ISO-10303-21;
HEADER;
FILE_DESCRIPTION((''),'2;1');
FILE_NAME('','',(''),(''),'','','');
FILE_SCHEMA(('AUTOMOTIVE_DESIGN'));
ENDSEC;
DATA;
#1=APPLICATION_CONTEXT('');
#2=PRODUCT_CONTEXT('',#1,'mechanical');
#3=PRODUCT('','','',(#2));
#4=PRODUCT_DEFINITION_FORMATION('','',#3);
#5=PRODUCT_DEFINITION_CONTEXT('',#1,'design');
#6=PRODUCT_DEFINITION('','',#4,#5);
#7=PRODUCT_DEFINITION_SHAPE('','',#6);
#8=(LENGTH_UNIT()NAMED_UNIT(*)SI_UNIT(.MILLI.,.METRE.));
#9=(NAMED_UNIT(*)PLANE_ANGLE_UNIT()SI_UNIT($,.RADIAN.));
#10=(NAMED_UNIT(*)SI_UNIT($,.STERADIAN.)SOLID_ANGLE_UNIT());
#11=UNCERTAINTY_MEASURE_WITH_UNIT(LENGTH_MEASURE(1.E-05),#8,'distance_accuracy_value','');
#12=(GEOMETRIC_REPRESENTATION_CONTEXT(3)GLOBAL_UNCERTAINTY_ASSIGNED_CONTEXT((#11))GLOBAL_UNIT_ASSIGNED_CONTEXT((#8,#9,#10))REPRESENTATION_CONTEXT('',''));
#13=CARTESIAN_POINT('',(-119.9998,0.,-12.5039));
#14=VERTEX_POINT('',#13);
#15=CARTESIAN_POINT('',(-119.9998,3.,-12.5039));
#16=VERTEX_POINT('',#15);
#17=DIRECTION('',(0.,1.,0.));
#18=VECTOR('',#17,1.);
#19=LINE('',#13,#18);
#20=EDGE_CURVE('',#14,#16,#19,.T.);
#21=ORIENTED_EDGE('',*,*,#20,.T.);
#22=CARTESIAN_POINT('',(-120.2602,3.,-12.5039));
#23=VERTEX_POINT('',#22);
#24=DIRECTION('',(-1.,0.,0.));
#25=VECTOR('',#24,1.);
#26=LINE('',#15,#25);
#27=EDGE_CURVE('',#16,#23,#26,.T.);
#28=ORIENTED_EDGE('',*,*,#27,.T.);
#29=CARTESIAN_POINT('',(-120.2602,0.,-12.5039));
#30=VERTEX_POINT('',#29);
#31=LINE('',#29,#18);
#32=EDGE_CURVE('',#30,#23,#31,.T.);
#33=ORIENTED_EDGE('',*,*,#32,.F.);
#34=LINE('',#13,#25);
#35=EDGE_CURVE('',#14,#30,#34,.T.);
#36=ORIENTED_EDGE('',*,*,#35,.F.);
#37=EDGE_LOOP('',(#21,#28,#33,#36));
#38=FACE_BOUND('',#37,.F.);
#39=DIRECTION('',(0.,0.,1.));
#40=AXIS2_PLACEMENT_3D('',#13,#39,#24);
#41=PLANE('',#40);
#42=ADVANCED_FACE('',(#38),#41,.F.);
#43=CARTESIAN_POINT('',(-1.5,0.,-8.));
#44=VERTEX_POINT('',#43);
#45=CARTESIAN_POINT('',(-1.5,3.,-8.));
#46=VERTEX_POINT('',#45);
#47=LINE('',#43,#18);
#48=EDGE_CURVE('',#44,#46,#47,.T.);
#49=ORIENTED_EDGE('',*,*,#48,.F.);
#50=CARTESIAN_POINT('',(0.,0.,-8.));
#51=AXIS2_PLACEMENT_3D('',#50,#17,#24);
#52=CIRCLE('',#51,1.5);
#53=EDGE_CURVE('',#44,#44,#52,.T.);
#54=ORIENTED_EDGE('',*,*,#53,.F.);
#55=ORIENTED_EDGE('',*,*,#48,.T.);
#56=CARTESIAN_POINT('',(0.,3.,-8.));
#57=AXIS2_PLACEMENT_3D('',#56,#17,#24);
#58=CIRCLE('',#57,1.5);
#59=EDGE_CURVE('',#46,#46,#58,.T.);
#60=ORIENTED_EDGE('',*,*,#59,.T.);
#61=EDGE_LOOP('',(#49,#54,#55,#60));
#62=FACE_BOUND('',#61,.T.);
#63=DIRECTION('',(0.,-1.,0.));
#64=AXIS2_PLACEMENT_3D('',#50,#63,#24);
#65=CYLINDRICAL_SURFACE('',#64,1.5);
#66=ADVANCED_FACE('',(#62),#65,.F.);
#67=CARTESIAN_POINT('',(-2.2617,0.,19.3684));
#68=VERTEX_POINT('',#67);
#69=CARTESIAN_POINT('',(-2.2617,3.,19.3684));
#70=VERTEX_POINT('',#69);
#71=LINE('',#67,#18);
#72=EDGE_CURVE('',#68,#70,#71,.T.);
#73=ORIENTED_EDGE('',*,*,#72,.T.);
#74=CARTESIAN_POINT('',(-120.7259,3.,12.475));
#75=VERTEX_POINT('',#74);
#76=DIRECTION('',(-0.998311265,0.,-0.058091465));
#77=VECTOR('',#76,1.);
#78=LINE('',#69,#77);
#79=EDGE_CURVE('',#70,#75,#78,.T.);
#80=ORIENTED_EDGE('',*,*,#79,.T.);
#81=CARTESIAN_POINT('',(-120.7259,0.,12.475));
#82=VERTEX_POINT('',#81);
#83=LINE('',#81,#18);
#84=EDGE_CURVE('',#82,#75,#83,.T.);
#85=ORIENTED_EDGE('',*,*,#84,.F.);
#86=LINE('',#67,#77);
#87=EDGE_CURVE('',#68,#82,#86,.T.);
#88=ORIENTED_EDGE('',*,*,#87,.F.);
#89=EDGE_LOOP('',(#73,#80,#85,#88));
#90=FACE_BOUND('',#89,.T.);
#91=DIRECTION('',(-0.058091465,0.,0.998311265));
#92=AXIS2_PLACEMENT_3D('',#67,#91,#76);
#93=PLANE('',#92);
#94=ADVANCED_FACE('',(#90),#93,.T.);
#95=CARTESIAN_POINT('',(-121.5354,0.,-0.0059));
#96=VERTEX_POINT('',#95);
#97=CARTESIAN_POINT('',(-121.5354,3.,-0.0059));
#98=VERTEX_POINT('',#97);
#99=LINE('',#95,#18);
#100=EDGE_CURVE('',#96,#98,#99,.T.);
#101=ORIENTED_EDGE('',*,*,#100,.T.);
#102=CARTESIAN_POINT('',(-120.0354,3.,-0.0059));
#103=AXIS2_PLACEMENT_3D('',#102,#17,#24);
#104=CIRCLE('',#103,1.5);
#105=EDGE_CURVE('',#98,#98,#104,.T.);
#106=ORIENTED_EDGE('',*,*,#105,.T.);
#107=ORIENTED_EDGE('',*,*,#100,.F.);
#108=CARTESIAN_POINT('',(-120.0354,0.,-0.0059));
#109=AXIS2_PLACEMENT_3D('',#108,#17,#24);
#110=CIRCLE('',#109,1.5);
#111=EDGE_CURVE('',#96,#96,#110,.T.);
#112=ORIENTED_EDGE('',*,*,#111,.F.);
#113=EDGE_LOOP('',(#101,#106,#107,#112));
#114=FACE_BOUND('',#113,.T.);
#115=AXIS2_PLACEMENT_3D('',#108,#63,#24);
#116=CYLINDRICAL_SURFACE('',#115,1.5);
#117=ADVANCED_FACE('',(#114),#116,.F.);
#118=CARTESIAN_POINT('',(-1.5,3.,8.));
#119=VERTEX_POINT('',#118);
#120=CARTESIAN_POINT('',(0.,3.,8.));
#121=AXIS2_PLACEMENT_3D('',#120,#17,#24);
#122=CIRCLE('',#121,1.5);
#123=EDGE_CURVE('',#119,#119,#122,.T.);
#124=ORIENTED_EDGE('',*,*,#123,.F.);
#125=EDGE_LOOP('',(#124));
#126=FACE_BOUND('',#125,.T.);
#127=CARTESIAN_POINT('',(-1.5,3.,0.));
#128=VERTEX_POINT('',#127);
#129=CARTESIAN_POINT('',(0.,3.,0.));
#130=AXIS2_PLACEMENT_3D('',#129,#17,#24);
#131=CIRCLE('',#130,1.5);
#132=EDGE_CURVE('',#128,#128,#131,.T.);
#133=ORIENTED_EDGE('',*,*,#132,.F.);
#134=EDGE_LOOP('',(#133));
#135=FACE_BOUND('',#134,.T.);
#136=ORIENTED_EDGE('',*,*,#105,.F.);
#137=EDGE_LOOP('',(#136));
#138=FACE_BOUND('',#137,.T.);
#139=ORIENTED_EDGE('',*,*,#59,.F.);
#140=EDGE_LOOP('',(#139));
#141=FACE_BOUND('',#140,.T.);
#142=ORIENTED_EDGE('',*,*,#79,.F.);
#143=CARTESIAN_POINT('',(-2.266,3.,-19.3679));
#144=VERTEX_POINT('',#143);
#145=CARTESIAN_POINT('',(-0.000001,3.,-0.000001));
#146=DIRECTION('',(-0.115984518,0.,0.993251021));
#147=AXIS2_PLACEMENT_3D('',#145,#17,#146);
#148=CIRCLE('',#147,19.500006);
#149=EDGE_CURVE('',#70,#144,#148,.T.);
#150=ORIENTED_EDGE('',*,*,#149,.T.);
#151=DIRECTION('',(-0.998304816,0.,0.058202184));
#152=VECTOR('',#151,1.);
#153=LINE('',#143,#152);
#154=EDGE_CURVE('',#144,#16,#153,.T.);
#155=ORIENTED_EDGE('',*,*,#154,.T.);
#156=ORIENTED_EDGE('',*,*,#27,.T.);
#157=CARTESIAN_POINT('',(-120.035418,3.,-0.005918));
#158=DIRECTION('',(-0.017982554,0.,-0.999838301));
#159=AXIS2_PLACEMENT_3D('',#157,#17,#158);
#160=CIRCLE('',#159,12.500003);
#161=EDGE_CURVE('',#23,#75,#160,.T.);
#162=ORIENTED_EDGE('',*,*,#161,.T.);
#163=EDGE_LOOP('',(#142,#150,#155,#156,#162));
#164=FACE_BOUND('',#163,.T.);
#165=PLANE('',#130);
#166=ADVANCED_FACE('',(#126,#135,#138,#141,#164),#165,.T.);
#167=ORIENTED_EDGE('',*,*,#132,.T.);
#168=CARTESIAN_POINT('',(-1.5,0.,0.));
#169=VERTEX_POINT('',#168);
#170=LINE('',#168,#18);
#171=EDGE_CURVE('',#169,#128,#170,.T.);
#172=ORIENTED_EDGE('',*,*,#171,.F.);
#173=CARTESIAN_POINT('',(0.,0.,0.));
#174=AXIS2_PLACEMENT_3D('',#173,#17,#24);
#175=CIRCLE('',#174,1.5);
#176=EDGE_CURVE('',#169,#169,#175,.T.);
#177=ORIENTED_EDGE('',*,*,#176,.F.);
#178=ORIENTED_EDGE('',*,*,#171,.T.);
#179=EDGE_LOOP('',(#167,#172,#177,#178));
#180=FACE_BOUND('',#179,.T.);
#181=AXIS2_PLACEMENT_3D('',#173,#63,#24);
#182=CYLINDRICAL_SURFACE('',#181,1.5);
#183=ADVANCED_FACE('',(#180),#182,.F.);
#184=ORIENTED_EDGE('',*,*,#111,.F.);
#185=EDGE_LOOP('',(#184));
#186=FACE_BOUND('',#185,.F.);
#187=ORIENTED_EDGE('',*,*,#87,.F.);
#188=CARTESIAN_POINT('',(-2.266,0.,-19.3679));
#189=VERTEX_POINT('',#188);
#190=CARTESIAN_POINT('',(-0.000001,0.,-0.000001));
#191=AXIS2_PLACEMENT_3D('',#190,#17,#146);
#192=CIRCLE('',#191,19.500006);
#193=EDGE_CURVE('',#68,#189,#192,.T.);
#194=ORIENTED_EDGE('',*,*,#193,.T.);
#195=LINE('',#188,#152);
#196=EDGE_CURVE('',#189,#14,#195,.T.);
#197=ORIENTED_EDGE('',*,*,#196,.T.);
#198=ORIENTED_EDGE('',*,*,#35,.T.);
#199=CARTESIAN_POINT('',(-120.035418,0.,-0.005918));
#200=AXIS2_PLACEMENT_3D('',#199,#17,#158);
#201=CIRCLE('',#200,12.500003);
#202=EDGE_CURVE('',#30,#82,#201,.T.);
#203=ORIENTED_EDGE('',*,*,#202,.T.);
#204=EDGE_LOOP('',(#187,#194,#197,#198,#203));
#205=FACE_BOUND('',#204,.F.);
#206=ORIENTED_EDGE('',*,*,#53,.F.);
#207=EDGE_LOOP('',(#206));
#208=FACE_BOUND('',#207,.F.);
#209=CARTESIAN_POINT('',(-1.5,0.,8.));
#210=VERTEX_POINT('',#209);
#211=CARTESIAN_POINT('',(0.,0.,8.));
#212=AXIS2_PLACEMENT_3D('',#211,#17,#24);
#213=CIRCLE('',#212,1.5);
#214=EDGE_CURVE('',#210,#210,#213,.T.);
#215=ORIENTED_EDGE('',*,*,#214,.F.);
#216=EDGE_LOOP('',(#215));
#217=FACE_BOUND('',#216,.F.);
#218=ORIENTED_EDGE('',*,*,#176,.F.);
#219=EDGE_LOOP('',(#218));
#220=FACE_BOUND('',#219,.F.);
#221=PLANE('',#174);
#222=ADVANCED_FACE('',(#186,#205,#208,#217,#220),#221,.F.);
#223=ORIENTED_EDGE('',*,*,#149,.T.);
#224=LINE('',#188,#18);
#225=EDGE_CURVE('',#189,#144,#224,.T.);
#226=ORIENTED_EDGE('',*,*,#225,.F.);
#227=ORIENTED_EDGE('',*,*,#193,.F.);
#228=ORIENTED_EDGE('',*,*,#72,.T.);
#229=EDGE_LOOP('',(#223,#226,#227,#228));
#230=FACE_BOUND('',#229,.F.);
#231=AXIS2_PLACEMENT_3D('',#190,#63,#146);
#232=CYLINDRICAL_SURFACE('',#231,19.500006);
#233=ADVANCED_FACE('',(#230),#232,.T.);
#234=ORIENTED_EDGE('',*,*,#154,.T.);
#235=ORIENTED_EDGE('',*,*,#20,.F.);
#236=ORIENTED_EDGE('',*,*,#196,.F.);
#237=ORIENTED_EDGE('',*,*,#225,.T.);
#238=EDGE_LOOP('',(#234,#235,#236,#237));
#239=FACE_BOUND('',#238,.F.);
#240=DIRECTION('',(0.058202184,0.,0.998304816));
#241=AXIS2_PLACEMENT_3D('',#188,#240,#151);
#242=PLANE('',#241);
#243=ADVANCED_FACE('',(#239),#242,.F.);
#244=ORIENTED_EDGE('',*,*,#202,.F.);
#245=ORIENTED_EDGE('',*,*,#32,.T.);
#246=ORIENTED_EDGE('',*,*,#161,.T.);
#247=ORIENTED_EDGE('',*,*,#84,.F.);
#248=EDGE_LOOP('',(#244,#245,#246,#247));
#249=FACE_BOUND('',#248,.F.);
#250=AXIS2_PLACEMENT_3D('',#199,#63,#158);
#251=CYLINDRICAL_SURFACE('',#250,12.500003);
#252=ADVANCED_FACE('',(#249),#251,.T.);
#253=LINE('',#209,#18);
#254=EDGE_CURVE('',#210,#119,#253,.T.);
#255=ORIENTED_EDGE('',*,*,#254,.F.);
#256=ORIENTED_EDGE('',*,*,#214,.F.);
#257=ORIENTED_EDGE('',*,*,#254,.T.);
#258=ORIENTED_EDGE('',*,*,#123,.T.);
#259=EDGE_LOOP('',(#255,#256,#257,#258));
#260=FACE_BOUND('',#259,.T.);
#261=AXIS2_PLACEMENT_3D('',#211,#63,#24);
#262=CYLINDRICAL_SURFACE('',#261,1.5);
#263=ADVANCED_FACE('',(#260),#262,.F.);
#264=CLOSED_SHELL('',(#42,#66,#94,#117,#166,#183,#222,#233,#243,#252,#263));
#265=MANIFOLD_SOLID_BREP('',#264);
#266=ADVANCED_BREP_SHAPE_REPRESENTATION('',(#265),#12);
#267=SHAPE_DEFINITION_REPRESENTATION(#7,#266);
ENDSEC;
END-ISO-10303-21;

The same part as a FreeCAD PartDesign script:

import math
import FreeCAD as App
import Part
import Sketcher
Q = App.Units.Quantity

doc = App.newDocument("Part")
body = doc.addObject("PartDesign::Body", "Body")

# Sketch on XZ plane
sketch1 = body.newObject("Sketcher::SketchObject", "Sketch")
sketch1.AttachmentSupport = (doc.getObject("XZ_Plane"), [""])
sketch1.MapMode = "FlatFace"
sketch1.addGeometry([
    Part.LineSegment(App.Vector(-120, -12.5, 0), App.Vector(-120.26, -12.5, 0)),  # 0
    Part.ArcOfCircle(Part.Circle(App.Vector(-120.04, -0.01, 0), App.Vector(0, 0, 1), 12.5), math.radians(93), math.radians(269)),  # 1
    Part.LineSegment(App.Vector(-120.73, 12.47, 0), App.Vector(-2.26, 19.37, 0)),  # 2
    Part.ArcOfCircle(Part.Circle(App.Vector(0, 0, 0), App.Vector(0, 0, 1), 19.5), math.radians(-97), math.radians(97)),  # 3
    Part.LineSegment(App.Vector(-2.27, -19.37, 0), App.Vector(-120, -12.5, 0)),  # 4
    Part.Circle(App.Vector(0, -8, 0), App.Vector(0, 0, 1), 1.5),  # 5
    Part.Circle(App.Vector(-120.04, -0.01, 0), App.Vector(0, 0, 1), 1.5),  # 6
    Part.Circle(App.Vector(0, 0, 0), App.Vector(0, 0, 1), 1.5),  # 7
    Part.Circle(App.Vector(0, 8, 0), App.Vector(0, 0, 1), 1.5),  # 8
], False)
sketch1.addConstraint([
    Sketcher.Constraint("Coincident", 0, 2, 1, 2),
    Sketcher.Constraint("Coincident", 1, 1, 2, 1),
    Sketcher.Constraint("Coincident", 2, 2, 3, 2),
    Sketcher.Constraint("Coincident", 3, 1, 4, 1),
    Sketcher.Constraint("Coincident", 4, 2, 0, 1),
    Sketcher.Constraint("Horizontal", 0),
    Sketcher.Constraint("Coincident", 3, 3, -1, 1),
    Sketcher.Constraint("Coincident", 7, 3, -1, 1),
    Sketcher.Constraint("Coincident", 6, 3, 1, 3),
    Sketcher.Constraint("Equal", 5, 6),
    Sketcher.Constraint("Equal", 6, 7),
    Sketcher.Constraint("Equal", 7, 8),
    Sketcher.Constraint("Symmetric", 5, 3, 8, 3, -1, 1),
    Sketcher.Constraint("PointOnObject", 5, 3, -2),
    Sketcher.Constraint("Diameter", 5, Q("3 mm")),
    Sketcher.Constraint("Radius", 1, Q("12.5 mm")),
    Sketcher.Constraint("Radius", 3, Q("19.5 mm")),
    Sketcher.Constraint("DistanceY", 5, 3, -1, 1, Q("8 mm")),
    Sketcher.Constraint("Angle", 2, Q("3.3303 deg")),
    Sketcher.Constraint("DistanceX", 0, 2, 0, 1, Q("0.2604 mm")),
    Sketcher.Constraint("DistanceY", 1, 3, -1, 1, Q("0.006 mm")),
    Sketcher.Constraint("DistanceY", 0, 2, -1, 1, Q("12.504 mm")),
    Sketcher.Constraint("DistanceX", 1, 1, -1, 1, Q("120.726 mm")),
    Sketcher.Constraint("DistanceY", -1, 1, 1, 1, Q("12.475 mm")),
    Sketcher.Constraint("DistanceX", 3, 1, -1, 1, Q("2.266 mm")),
])
pad1 = body.newObject("PartDesign::Pad", "Pad")
pad1.Profile = sketch1
pad1.Length = 3
pad1.Reversed = True

doc.recompute()
